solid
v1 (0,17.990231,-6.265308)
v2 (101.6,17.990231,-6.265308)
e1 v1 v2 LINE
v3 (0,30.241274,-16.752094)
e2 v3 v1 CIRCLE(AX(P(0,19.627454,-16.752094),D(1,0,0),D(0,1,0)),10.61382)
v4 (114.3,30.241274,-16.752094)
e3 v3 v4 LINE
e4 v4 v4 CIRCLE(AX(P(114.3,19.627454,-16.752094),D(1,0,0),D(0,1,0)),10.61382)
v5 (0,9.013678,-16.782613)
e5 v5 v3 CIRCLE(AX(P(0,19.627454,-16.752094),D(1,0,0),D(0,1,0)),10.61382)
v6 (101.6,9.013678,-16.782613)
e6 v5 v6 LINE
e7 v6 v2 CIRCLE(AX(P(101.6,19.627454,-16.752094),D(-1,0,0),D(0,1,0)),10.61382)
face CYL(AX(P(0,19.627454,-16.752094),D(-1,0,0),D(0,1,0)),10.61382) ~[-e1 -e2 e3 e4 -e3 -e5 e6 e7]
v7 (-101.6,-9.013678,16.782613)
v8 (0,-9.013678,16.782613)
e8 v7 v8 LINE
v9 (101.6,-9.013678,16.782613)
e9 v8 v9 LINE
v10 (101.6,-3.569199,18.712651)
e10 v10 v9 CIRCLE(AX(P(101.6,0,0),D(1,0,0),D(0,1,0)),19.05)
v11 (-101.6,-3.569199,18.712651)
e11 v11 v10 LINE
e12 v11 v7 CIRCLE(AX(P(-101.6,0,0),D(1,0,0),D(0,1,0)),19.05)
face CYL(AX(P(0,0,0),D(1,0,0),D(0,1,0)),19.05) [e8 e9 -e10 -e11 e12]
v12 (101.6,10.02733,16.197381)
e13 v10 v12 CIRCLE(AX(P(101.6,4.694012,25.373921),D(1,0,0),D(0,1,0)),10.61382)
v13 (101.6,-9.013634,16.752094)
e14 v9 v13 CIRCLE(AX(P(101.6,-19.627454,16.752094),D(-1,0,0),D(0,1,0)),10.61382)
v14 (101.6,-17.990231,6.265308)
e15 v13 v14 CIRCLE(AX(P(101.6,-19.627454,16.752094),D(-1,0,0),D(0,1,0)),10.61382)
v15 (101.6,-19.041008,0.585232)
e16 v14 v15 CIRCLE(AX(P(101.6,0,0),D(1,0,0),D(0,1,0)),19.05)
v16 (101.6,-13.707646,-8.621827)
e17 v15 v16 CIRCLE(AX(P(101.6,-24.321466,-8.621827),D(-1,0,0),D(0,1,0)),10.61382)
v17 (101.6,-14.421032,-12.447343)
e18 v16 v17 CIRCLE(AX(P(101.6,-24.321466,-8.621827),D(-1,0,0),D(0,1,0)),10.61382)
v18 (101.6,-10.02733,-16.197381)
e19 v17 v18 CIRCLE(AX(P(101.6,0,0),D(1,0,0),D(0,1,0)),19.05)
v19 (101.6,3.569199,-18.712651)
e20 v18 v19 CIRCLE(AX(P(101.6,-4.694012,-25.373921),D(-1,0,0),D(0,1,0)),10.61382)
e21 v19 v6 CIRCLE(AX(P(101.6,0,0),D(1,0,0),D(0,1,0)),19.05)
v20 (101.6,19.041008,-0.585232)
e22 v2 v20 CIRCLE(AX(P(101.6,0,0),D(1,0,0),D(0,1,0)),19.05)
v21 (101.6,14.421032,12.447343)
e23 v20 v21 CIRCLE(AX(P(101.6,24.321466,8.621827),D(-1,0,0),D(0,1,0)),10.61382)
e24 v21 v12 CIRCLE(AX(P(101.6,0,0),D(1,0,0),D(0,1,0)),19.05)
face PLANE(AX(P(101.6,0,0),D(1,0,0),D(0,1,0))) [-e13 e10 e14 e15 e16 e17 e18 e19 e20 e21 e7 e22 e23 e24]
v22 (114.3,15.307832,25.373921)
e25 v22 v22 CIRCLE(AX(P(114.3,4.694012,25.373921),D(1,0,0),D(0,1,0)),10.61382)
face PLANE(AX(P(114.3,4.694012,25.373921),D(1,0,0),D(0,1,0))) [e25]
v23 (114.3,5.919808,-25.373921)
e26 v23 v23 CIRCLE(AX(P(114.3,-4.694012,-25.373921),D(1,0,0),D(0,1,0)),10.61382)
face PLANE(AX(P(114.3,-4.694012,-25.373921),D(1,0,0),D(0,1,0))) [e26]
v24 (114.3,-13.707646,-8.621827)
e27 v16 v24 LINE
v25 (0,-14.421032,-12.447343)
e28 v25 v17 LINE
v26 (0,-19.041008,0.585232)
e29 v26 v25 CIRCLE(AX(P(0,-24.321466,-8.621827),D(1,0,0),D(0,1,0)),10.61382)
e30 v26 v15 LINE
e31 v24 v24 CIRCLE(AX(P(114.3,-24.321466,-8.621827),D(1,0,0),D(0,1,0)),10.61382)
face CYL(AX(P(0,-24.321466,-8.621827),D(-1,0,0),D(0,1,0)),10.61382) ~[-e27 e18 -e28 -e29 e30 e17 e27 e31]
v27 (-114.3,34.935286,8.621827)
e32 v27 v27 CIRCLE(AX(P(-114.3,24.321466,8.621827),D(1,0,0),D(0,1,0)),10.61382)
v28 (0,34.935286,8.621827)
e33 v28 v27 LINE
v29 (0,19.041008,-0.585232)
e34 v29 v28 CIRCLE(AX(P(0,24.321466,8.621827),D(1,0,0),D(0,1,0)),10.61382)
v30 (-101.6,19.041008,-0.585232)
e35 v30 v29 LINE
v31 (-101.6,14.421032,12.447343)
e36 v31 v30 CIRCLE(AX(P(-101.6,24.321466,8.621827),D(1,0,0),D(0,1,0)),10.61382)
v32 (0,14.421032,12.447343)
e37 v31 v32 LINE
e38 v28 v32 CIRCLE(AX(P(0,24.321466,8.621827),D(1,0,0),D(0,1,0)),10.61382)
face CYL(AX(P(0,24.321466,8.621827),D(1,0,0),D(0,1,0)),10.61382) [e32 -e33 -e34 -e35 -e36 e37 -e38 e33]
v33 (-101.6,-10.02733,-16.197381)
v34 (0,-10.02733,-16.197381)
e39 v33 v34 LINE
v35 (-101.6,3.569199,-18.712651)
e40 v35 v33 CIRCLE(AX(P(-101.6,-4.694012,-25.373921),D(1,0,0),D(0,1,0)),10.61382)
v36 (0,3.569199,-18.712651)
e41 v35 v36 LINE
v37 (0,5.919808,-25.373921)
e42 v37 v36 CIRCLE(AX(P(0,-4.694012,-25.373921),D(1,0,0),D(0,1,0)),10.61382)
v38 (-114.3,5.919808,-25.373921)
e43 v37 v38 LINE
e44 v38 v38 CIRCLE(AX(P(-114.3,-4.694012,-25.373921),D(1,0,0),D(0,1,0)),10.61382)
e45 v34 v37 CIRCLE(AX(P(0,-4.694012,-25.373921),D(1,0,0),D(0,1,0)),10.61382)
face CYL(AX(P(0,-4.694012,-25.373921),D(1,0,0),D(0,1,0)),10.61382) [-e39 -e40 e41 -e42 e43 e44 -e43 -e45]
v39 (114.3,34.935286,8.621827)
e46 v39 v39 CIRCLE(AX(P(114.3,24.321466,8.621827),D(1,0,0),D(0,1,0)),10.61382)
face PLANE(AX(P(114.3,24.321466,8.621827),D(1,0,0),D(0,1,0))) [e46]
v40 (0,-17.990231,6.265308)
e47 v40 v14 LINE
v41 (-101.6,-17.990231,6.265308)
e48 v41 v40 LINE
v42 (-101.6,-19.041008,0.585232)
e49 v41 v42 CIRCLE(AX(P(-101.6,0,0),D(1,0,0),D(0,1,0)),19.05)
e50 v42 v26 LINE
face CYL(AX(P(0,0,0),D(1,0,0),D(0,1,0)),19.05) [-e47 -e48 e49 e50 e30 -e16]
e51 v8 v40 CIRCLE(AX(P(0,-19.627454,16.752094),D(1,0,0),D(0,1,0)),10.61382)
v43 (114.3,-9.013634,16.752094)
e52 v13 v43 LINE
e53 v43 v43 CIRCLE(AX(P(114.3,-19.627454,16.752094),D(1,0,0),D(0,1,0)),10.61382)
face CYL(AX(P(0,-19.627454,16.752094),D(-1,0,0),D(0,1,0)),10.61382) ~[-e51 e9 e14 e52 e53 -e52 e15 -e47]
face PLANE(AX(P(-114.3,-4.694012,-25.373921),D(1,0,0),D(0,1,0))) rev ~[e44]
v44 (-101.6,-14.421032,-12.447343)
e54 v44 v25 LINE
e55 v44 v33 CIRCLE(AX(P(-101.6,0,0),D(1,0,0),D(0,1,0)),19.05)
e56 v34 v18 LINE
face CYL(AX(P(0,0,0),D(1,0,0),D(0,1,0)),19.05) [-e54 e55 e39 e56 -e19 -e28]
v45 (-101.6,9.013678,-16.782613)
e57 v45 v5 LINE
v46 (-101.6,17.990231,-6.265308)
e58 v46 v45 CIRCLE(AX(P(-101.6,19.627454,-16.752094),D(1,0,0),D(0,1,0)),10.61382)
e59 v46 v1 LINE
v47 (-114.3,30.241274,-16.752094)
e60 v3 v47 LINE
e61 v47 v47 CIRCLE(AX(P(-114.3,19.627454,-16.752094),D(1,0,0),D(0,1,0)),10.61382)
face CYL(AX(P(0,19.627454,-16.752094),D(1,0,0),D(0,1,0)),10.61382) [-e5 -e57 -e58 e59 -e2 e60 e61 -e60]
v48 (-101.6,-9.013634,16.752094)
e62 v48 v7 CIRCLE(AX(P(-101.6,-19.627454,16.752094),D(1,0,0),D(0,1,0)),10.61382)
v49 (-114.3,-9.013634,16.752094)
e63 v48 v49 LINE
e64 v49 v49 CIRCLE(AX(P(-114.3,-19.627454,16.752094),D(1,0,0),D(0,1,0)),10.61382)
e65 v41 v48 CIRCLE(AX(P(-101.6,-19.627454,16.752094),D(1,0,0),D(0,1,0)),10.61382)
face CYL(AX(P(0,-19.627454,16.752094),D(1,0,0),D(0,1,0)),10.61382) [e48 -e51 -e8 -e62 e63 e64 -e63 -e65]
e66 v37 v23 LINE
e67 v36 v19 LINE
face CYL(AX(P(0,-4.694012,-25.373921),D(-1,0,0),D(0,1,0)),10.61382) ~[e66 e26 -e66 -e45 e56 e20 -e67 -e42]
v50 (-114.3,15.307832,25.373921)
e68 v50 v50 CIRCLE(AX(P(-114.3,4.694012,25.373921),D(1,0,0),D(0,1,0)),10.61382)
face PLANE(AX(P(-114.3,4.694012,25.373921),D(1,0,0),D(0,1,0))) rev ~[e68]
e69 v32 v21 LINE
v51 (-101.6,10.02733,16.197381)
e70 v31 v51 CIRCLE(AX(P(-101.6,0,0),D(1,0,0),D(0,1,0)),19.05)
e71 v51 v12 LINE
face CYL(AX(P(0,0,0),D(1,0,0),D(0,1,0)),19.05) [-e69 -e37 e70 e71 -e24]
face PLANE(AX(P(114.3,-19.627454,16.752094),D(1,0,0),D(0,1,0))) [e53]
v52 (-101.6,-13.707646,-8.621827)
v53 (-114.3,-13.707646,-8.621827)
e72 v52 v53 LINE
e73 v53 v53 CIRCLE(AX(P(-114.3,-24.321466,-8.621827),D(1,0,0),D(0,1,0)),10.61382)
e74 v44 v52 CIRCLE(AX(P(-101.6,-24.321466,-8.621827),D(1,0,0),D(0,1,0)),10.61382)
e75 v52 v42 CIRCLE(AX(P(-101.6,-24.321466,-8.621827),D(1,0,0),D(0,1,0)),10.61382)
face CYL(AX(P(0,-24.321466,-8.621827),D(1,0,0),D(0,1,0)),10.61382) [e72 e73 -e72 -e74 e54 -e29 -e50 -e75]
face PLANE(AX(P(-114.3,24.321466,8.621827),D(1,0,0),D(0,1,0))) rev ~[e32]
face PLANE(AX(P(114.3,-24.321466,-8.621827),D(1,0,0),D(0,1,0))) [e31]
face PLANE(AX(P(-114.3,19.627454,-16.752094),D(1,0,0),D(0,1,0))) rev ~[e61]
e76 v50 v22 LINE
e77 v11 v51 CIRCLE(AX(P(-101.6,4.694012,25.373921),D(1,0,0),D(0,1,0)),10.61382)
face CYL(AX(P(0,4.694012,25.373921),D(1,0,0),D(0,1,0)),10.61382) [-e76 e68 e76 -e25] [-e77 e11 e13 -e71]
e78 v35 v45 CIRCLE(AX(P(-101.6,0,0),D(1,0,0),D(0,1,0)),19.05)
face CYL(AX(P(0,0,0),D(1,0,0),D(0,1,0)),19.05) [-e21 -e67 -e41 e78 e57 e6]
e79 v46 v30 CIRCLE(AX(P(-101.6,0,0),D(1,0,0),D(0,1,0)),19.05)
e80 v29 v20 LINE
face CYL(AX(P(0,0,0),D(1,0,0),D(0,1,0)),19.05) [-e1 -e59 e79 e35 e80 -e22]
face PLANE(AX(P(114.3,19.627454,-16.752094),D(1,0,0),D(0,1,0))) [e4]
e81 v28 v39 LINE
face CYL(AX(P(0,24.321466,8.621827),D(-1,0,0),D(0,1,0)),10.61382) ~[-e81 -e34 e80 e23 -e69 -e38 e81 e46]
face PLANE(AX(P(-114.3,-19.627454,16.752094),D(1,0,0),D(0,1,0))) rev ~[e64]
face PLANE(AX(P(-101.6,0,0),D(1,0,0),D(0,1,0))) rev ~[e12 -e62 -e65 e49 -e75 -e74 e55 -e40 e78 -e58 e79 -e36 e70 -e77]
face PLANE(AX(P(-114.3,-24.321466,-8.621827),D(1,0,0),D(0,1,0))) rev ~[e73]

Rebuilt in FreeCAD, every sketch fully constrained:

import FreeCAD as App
import Part
import Sketcher
Q = App.Units.Quantity

doc = App.newDocument("Part")
body = doc.addObject("PartDesign::Body", "Body")

sketch1 = doc.addObject("Sketcher::SketchObject", "Sketch")
body.addObject(sketch1)
sketch1.AttachmentSupport = (doc.YZ_Plane, [""])
sketch1.MapMode = "FlatFace"
sketch1.addGeometry(Part.Circle(App.Vector(0, 0, 0), App.Vector(0, 0, 1), 19), False)
sketch1.addConstraint([
    Sketcher.Constraint("Coincident", 0, 3, -1, 1),
    Sketcher.Constraint("Diameter", 0, Q("1.5 in")),
])
pad1 = doc.addObject("PartDesign::Pad", "Pad")
body.addObject(pad1)
pad1.Profile = sketch1
pad1.Length = Q("8 in")
pad1.Midplane = True

sketch2 = doc.addObject("Sketcher::SketchObject", "Sketch001")
body.addObject(sketch2)
sketch2.AttachmentSupport = (doc.YZ_Plane, [""])
sketch2.MapMode = "FlatFace"
sketch2.addGeometry([
    Part.Circle(App.Vector(-20, 17, 0), App.Vector(0, 0, 1), 11),
    Part.Circle(App.Vector(-24, -9, 0), App.Vector(0, 0, 1), 11),
    Part.Circle(App.Vector(-5, -25, 0), App.Vector(0, 0, 1), 11),
    Part.Circle(App.Vector(20, -17, 0), App.Vector(0, 0, 1), 11),
    Part.Circle(App.Vector(24, 9, 0), App.Vector(0, 0, 1), 11),
    Part.Circle(App.Vector(5, 25, 0), App.Vector(0, 0, 1), 11),
], False)
sketch2.addConstraint([
    Sketcher.Constraint("Equal", 0, 1),
    Sketcher.Constraint("Equal", 1, 2),
    Sketcher.Constraint("Equal", 2, 3),
    Sketcher.Constraint("Equal", 3, 4),
    Sketcher.Constraint("Equal", 4, 5),
    Sketcher.Constraint("Symmetric", 0, 3, 3, 3, -1, 1),
    Sketcher.Constraint("Symmetric", 1, 3, 4, 3, -1, 1),
    Sketcher.Constraint("Symmetric", 2, 3, 5, 3, -1, 1),
    Sketcher.Constraint("Diameter", 0, 21.22764),
    Sketcher.Constraint("DistanceY", 2, 3, -1, 1, 25.373921),
    Sketcher.Constraint("DistanceY", 1, 3, 0, 3, 25.373921),
    Sketcher.Constraint("DistanceX", 1, 3, 3, 3, 43.94892),
    Sketcher.Constraint("DistanceX", 2, 3, 4, 3, 29.015478),
    Sketcher.Constraint("DistanceX", 0, 3, -1, 1, 19.627454),
    Sketcher.Constraint("DistanceY", -1, 1, 0, 3, 16.752094),
])
pad2 = doc.addObject("PartDesign::Pad", "Pad001")
body.addObject(pad2)
pad2.Profile = sketch2
pad2.Length = Q("9 in")
pad2.Midplane = True

doc.recompute()
